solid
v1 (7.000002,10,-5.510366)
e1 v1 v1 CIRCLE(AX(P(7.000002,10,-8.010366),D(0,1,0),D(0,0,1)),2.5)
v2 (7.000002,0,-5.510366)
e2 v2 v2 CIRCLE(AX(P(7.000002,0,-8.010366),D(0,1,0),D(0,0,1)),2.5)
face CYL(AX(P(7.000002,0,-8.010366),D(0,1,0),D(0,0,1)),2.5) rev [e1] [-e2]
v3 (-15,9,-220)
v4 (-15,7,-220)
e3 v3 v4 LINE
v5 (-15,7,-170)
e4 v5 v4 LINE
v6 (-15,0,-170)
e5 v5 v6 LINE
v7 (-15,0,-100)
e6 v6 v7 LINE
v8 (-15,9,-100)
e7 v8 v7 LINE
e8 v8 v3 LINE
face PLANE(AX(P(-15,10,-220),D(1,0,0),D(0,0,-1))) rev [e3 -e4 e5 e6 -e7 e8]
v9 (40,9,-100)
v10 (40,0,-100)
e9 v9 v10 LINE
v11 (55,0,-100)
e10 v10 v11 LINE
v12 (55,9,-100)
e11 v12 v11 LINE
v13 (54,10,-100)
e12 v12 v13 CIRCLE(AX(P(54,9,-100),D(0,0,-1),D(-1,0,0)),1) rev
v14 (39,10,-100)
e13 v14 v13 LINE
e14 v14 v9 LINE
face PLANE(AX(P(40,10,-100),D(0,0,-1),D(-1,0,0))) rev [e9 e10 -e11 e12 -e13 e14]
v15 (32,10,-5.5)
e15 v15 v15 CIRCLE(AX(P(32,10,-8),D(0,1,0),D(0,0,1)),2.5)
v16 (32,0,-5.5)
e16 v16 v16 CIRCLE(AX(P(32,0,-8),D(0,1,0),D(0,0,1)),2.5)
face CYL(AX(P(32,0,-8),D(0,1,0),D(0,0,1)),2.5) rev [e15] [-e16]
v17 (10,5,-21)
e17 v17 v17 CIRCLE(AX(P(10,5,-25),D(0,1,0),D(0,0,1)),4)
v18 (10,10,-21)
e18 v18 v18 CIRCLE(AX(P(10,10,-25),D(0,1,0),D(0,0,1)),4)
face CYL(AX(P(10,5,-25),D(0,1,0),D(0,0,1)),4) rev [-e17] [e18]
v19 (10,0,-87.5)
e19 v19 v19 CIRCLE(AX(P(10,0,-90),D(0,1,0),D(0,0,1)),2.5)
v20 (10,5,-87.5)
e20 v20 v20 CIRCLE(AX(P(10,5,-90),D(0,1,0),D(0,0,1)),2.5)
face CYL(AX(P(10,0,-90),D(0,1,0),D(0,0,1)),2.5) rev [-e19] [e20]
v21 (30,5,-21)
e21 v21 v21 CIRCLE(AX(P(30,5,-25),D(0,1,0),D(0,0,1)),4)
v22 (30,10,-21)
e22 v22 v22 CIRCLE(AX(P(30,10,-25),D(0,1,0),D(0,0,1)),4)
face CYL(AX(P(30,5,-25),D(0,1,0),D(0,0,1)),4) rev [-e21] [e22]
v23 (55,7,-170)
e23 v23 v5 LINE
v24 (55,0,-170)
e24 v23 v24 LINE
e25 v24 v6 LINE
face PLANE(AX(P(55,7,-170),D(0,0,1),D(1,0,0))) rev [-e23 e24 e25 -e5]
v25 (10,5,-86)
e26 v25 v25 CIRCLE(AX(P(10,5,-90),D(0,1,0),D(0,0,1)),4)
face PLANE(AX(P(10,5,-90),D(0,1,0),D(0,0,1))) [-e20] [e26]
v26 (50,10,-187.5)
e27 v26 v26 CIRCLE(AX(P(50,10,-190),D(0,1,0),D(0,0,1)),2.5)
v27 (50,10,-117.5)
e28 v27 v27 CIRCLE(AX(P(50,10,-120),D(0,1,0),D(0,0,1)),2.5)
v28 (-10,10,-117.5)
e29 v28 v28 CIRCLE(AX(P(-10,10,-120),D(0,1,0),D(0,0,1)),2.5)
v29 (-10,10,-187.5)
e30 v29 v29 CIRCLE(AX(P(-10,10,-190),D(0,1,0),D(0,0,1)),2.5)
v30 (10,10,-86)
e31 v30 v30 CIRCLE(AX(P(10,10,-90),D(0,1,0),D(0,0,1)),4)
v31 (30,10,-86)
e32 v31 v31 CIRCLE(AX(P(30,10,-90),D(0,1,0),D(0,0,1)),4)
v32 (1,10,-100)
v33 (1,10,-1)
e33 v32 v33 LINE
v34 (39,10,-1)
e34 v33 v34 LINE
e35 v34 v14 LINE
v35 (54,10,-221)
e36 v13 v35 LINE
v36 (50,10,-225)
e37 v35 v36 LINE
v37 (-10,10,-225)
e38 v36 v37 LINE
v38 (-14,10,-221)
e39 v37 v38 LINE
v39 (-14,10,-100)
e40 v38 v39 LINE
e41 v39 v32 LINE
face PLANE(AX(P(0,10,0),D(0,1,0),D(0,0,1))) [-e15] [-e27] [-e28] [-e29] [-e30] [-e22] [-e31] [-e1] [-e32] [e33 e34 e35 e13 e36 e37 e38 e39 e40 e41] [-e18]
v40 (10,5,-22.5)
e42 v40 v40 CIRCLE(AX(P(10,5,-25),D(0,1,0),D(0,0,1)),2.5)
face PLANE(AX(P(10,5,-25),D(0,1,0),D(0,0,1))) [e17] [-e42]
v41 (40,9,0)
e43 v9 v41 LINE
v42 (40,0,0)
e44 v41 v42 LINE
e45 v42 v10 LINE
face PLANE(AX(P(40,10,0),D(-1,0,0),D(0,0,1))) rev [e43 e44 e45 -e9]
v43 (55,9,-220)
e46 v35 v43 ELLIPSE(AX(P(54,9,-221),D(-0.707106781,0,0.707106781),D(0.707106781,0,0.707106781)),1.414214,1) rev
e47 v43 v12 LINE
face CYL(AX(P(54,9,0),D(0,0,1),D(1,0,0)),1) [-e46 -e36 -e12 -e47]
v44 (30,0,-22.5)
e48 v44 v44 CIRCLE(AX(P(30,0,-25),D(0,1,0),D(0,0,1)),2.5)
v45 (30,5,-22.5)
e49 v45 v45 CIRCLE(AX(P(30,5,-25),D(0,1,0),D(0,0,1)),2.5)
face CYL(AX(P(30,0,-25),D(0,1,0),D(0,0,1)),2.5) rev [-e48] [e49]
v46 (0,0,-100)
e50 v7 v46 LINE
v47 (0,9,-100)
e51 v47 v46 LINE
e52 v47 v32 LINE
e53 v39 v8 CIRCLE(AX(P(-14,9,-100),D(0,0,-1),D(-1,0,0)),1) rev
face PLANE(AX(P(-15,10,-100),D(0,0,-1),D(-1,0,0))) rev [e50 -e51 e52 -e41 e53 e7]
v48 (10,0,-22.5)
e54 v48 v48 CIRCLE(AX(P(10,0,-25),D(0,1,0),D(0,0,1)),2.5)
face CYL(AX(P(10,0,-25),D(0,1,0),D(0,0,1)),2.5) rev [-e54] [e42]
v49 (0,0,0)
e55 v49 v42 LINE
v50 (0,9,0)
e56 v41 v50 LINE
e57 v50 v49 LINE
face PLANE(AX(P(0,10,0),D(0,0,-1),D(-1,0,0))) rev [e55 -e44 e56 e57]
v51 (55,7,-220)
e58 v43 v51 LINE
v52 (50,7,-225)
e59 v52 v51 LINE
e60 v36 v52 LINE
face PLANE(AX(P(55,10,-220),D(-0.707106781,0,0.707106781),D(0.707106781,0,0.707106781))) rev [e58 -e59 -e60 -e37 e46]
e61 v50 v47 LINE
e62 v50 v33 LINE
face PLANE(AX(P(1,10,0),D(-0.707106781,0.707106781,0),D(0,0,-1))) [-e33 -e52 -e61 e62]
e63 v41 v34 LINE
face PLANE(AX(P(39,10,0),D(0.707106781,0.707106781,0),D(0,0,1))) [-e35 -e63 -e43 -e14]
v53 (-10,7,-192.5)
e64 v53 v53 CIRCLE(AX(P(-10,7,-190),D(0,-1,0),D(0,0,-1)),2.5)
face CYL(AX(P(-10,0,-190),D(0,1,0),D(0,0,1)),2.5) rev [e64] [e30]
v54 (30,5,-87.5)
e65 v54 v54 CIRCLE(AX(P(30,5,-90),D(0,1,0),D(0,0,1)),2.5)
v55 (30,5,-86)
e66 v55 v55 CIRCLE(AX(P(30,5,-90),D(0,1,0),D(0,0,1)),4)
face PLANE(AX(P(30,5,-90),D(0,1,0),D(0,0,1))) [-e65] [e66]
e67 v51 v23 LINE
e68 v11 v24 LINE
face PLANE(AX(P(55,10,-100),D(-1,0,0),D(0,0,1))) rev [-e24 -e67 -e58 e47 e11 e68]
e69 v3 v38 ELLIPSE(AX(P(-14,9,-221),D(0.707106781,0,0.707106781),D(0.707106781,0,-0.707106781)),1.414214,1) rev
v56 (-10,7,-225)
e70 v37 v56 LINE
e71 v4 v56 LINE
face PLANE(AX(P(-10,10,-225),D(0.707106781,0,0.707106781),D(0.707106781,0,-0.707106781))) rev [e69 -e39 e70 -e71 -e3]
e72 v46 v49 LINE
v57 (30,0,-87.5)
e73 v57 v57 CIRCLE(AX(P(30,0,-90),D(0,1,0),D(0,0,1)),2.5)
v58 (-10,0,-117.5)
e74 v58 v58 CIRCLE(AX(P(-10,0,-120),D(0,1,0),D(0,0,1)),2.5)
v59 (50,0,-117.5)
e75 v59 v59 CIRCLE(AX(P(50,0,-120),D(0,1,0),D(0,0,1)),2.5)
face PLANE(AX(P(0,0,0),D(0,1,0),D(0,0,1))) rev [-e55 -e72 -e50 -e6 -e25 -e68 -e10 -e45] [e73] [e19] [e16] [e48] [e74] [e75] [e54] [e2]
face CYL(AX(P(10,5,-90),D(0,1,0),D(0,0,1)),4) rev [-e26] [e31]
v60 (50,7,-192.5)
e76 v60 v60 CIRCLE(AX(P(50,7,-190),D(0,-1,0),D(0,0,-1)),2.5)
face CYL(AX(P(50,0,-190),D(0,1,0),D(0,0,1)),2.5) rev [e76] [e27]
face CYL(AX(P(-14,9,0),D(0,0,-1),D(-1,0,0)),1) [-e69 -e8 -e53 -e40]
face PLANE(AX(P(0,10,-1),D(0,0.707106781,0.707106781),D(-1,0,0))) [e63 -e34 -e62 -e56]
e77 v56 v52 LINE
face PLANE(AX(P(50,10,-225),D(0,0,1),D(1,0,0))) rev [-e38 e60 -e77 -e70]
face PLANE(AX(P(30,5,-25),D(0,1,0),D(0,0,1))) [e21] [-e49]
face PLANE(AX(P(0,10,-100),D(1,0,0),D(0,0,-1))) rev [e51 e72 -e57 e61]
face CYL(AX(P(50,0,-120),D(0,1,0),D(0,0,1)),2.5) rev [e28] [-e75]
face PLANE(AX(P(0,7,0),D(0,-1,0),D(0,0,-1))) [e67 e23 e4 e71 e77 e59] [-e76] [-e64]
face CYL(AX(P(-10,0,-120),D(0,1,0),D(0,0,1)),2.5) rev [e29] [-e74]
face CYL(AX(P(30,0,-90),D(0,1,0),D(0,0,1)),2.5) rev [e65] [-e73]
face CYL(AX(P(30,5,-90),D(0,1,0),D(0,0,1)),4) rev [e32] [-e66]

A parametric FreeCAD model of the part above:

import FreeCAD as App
import Part
import Sketcher

V = App.Vector


def edges_at(feature, points):
    """Names of the edges that pass closest to the given points."""
    edges = feature.Shape.Edges
    near = lambda p: min(range(len(edges)), key=lambda i: edges[i].distToShape(Part.Vertex(*p))[0])
    return sorted({f"Edge{near(p) + 1}" for p in points})


def add_polygon(sketch, points):
    """Adds a closed chain of lines whose ends are joined by coincident constraints."""
    first, n = sketch.GeometryCount, len(points)
    for a, b in zip(points, points[1:] + points[:1]):
        sketch.addGeometry(Part.LineSegment(App.Vector(*a, 0), App.Vector(*b, 0)), False)
    for i in range(n):
        sketch.addConstraint(Sketcher.Constraint("Coincident", first + i, 2, first + (i + 1) % n, 1))

doc = App.newDocument("Part")
body = doc.addObject("PartDesign::Body", "Body")

sketch1 = body.newObject("Sketcher::SketchObject", "Sketch")
sketch1.AttachmentSupport = (doc.getObject("XZ_Plane"), [""])
sketch1.MapMode = "FlatFace"
add_polygon(sketch1, [(0, 0), (40, 0), (40, -100), (55, -100), (55, -220), (50, -225), (-10, -225), (-15, -220), (-15, -100), (0, -100)])
sketch1.addConstraint([
    Sketcher.Constraint("Horizontal", 0),
    Sketcher.Constraint("Vertical", 1),
    Sketcher.Constraint("Horizontal", 2),
    Sketcher.Constraint("Vertical", 3),
    Sketcher.Constraint("Horizontal", 5),
    Sketcher.Constraint("Vertical", 7),
    Sketcher.Constraint("Horizontal", 8),
    Sketcher.Constraint("Vertical", 9),
    Sketcher.Constraint("Coincident", 9, 2, -1, 1),
    Sketcher.Constraint("Perpendicular", 4, 6),
    Sketcher.Constraint("Horizontal", 3, 2, 6, 2),
    Sketcher.Constraint("Horizontal", 2, 2, 7, 2),
    Sketcher.Constraint("Equal", 2, 8),
    Sketcher.Constraint("Equal", 4, 6),
    Sketcher.Constraint("DistanceX", 0, 1, 0, 2, 40.0),
    Sketcher.Constraint("DistanceX", 2, 1, 2, 2, 15.0),
    Sketcher.Constraint("DistanceX", 5, 2, 5, 1, 60.0),
    Sketcher.Constraint("DistanceY", 1, 2, 1, 1, 100.0),
    Sketcher.Constraint("DistanceY", 3, 2, 3, 1, 120.0),
])
pad1 = body.newObject("PartDesign::Pad", "Pad")
pad1.Profile = sketch1
pad1.Length = 10
pad1.Reversed = True

sketch2 = body.newObject("Sketcher::SketchObject", "Sketch001")
sketch2.AttachmentSupport = (doc.getObject("XZ_Plane"), [""])
sketch2.MapMode = "FlatFace"
add_polygon(sketch2, [(-15, -220), (-10, -225), (50, -225), (55, -220), (55, -170), (-15, -170)])
sketch2.addConstraint([
    Sketcher.Constraint("Horizontal", 1),
    Sketcher.Constraint("Vertical", 3),
    Sketcher.Constraint("Horizontal", 4),
    Sketcher.Constraint("Vertical", 5),
    Sketcher.Constraint("Perpendicular", 0, 2),
    Sketcher.Constraint("Horizontal", 2, 2, 5, 2),
    Sketcher.Constraint("Equal", 0, 2),
    Sketcher.Constraint("DistanceX", 1, 1, 1, 2, 60.0),
    Sketcher.Constraint("DistanceX", 4, 2, 4, 1, 70.0),
    Sketcher.Constraint("DistanceY", 3, 1, 3, 2, 50.0),
    Sketcher.Constraint("DistanceX", 0, 2, -1, 1, 10.0),
    Sketcher.Constraint("DistanceY", 0, 2, -1, 1, 225.0),
])
pocket1 = body.newObject("PartDesign::Pocket", "Pocket")
pocket1.Profile = sketch2
pocket1.Length = 7

sketch3 = body.newObject("Sketcher::SketchObject", "Sketch002")
sketch3.AttachmentSupport = (doc.getObject("XZ_Plane"), [""])
sketch3.MapMode = "FlatFace"
sketch3.AttachmentOffset = App.Placement(V(0, 0, -10), App.Rotation())
sketch3.addGeometry([
    Part.Circle(V(10, -25, 0), V(0, 0, 1), 4),
    Part.Circle(V(30, -25, 0), V(0, 0, 1), 4),
    Part.Circle(V(10, -90, 0), V(0, 0, 1), 4),
    Part.Circle(V(30, -90, 0), V(0, 0, 1), 4),
], False)
sketch3.addConstraint([
    Sketcher.Constraint("Equal", 0, 1),
    Sketcher.Constraint("Equal", 1, 2),
    Sketcher.Constraint("Equal", 2, 3),
    Sketcher.Constraint("Horizontal", 0, 3, 1, 3),
    Sketcher.Constraint("Horizontal", 2, 3, 3, 3),
    Sketcher.Constraint("Vertical", 0, 3, 2, 3),
    Sketcher.Constraint("Vertical", 1, 3, 3, 3),
    Sketcher.Constraint("Diameter", 0, 8.0),
    Sketcher.Constraint("DistanceX", -1, 1, 0, 3, 10.0),
    Sketcher.Constraint("DistanceY", 0, 3, -1, 1, 25.0),
    Sketcher.Constraint("DistanceX", -1, 1, 1, 3, 30.0),
    Sketcher.Constraint("DistanceY", 2, 3, -1, 1, 90.0),
])
pocket2 = body.newObject("PartDesign::Pocket", "Pocket001")
pocket2.Profile = sketch3
pocket2.Length = 5
pocket2.Reversed = True

sketch4 = body.newObject("Sketcher::SketchObject", "Sketch003")
sketch4.AttachmentSupport = (doc.getObject("XZ_Plane"), [""])
sketch4.MapMode = "FlatFace"
sketch4.AttachmentOffset = App.Placement(V(0, 0, -5), App.Rotation())
sketch4.addGeometry([
    Part.Circle(V(30, -90, 0), V(0, 0, 1), 2.5),
    Part.Circle(V(10, -90, 0), V(0, 0, 1), 2.5),
    Part.Circle(V(10, -25, 0), V(0, 0, 1), 2.5),
    Part.Circle(V(30, -25, 0), V(0, 0, 1), 2.5),
], False)
sketch4.addConstraint([
    Sketcher.Constraint("Equal", 0, 1),
    Sketcher.Constraint("Equal", 1, 2),
    Sketcher.Constraint("Equal", 2, 3),
    Sketcher.Constraint("Horizontal", 0, 3, 1, 3),
    Sketcher.Constraint("Horizontal", 2, 3, 3, 3),
    Sketcher.Constraint("Vertical", 1, 3, 2, 3),
    Sketcher.Constraint("Vertical", 0, 3, 3, 3),
    Sketcher.Constraint("Diameter", 0, 5.0),
    Sketcher.Constraint("DistanceX", -1, 1, 0, 3, 30.0),
    Sketcher.Constraint("DistanceY", 0, 3, -1, 1, 90.0),
    Sketcher.Constraint("DistanceX", -1, 1, 1, 3, 10.0),
    Sketcher.Constraint("DistanceY", 2, 3, -1, 1, 25.0),
])
pocket3 = body.newObject("PartDesign::Pocket", "Pocket002")
pocket3.Profile = sketch4
pocket3.Type = "ThroughAll"
pocket3.Reversed = True

sketch5 = body.newObject("Sketcher::SketchObject", "Sketch004")
sketch5.AttachmentSupport = (doc.getObject("XZ_Plane"), [""])
sketch5.MapMode = "FlatFace"
sketch5.AttachmentOffset = App.Placement(V(0, 0, -10), App.Rotation())
sketch5.addGeometry([
    Part.Circle(V(50, -190, 0), V(0, 0, 1), 2.5),
    Part.Circle(V(-10, -190, 0), V(0, 0, 1), 2.5),
    Part.Circle(V(-10, -120, 0), V(0, 0, 1), 2.5),
    Part.Circle(V(50, -120, 0), V(0, 0, 1), 2.5),
], False)
sketch5.addConstraint([
    Sketcher.Constraint("Equal", 0, 1),
    Sketcher.Constraint("Equal", 1, 2),
    Sketcher.Constraint("Equal", 2, 3),
    Sketcher.Constraint("Horizontal", 0, 3, 1, 3),
    Sketcher.Constraint("Horizontal", 2, 3, 3, 3),
    Sketcher.Constraint("Vertical", 1, 3, 2, 3),
    Sketcher.Constraint("Vertical", 0, 3, 3, 3),
    Sketcher.Constraint("Diameter", 0, 5.0),
    Sketcher.Constraint("DistanceX", -1, 1, 0, 3, 50.0),
    Sketcher.Constraint("DistanceY", 0, 3, -1, 1, 190.0),
    Sketcher.Constraint("DistanceX", 1, 3, -1, 1, 10.0),
    Sketcher.Constraint("DistanceY", 2, 3, -1, 1, 120.0),
])
pocket4 = body.newObject("PartDesign::Pocket", "Pocket003")
pocket4.Profile = sketch5
pocket4.Type = "ThroughAll"
pocket4.Reversed = True

sketch6 = body.newObject("Sketcher::SketchObject", "Sketch005")
sketch6.AttachmentSupport = (doc.getObject("XZ_Plane"), [""])
sketch6.MapMode = "FlatFace"
sketch6.AttachmentOffset = App.Placement(V(0, 0, -10), App.Rotation())
sketch6.addGeometry([
    Part.Circle(V(32, -8, 0), V(0, 0, 1), 2.5),
    Part.Circle(V(7, -8, 0), V(0, 0, 1), 2.5),
], False)
sketch6.addConstraint([
    Sketcher.Constraint("Equal", 0, 1),
    Sketcher.Constraint("Diameter", 0, 5.0),
    Sketcher.Constraint("DistanceX", -1, 1, 0, 3, 32.0),
    Sketcher.Constraint("DistanceY", 0, 3, -1, 1, 8.0),
    Sketcher.Constraint("DistanceX", -1, 1, 1, 3, 7.000002),
    Sketcher.Constraint("DistanceY", 1, 3, -1, 1, 8.010366),
])
pocket5 = body.newObject("PartDesign::Pocket", "Pocket004")
pocket5.Profile = sketch6
pocket5.Type = "ThroughAll"
pocket5.Reversed = True
doc.recompute()

chamfer = body.newObject("PartDesign::Chamfer", "Chamfer")
chamfer.Base = (pocket5, edges_at(pocket5, [(40, 10, -50), (0, 10, -50), (20, 10, 0)]))
chamfer.Size = 1
doc.recompute()

fillet = body.newObject("PartDesign::Fillet", "Fillet")
fillet.Base = (chamfer, edges_at(chamfer, [(55, 10, -160), (-15, 10, -160)]))
fillet.Radius = 1

doc.recompute()
